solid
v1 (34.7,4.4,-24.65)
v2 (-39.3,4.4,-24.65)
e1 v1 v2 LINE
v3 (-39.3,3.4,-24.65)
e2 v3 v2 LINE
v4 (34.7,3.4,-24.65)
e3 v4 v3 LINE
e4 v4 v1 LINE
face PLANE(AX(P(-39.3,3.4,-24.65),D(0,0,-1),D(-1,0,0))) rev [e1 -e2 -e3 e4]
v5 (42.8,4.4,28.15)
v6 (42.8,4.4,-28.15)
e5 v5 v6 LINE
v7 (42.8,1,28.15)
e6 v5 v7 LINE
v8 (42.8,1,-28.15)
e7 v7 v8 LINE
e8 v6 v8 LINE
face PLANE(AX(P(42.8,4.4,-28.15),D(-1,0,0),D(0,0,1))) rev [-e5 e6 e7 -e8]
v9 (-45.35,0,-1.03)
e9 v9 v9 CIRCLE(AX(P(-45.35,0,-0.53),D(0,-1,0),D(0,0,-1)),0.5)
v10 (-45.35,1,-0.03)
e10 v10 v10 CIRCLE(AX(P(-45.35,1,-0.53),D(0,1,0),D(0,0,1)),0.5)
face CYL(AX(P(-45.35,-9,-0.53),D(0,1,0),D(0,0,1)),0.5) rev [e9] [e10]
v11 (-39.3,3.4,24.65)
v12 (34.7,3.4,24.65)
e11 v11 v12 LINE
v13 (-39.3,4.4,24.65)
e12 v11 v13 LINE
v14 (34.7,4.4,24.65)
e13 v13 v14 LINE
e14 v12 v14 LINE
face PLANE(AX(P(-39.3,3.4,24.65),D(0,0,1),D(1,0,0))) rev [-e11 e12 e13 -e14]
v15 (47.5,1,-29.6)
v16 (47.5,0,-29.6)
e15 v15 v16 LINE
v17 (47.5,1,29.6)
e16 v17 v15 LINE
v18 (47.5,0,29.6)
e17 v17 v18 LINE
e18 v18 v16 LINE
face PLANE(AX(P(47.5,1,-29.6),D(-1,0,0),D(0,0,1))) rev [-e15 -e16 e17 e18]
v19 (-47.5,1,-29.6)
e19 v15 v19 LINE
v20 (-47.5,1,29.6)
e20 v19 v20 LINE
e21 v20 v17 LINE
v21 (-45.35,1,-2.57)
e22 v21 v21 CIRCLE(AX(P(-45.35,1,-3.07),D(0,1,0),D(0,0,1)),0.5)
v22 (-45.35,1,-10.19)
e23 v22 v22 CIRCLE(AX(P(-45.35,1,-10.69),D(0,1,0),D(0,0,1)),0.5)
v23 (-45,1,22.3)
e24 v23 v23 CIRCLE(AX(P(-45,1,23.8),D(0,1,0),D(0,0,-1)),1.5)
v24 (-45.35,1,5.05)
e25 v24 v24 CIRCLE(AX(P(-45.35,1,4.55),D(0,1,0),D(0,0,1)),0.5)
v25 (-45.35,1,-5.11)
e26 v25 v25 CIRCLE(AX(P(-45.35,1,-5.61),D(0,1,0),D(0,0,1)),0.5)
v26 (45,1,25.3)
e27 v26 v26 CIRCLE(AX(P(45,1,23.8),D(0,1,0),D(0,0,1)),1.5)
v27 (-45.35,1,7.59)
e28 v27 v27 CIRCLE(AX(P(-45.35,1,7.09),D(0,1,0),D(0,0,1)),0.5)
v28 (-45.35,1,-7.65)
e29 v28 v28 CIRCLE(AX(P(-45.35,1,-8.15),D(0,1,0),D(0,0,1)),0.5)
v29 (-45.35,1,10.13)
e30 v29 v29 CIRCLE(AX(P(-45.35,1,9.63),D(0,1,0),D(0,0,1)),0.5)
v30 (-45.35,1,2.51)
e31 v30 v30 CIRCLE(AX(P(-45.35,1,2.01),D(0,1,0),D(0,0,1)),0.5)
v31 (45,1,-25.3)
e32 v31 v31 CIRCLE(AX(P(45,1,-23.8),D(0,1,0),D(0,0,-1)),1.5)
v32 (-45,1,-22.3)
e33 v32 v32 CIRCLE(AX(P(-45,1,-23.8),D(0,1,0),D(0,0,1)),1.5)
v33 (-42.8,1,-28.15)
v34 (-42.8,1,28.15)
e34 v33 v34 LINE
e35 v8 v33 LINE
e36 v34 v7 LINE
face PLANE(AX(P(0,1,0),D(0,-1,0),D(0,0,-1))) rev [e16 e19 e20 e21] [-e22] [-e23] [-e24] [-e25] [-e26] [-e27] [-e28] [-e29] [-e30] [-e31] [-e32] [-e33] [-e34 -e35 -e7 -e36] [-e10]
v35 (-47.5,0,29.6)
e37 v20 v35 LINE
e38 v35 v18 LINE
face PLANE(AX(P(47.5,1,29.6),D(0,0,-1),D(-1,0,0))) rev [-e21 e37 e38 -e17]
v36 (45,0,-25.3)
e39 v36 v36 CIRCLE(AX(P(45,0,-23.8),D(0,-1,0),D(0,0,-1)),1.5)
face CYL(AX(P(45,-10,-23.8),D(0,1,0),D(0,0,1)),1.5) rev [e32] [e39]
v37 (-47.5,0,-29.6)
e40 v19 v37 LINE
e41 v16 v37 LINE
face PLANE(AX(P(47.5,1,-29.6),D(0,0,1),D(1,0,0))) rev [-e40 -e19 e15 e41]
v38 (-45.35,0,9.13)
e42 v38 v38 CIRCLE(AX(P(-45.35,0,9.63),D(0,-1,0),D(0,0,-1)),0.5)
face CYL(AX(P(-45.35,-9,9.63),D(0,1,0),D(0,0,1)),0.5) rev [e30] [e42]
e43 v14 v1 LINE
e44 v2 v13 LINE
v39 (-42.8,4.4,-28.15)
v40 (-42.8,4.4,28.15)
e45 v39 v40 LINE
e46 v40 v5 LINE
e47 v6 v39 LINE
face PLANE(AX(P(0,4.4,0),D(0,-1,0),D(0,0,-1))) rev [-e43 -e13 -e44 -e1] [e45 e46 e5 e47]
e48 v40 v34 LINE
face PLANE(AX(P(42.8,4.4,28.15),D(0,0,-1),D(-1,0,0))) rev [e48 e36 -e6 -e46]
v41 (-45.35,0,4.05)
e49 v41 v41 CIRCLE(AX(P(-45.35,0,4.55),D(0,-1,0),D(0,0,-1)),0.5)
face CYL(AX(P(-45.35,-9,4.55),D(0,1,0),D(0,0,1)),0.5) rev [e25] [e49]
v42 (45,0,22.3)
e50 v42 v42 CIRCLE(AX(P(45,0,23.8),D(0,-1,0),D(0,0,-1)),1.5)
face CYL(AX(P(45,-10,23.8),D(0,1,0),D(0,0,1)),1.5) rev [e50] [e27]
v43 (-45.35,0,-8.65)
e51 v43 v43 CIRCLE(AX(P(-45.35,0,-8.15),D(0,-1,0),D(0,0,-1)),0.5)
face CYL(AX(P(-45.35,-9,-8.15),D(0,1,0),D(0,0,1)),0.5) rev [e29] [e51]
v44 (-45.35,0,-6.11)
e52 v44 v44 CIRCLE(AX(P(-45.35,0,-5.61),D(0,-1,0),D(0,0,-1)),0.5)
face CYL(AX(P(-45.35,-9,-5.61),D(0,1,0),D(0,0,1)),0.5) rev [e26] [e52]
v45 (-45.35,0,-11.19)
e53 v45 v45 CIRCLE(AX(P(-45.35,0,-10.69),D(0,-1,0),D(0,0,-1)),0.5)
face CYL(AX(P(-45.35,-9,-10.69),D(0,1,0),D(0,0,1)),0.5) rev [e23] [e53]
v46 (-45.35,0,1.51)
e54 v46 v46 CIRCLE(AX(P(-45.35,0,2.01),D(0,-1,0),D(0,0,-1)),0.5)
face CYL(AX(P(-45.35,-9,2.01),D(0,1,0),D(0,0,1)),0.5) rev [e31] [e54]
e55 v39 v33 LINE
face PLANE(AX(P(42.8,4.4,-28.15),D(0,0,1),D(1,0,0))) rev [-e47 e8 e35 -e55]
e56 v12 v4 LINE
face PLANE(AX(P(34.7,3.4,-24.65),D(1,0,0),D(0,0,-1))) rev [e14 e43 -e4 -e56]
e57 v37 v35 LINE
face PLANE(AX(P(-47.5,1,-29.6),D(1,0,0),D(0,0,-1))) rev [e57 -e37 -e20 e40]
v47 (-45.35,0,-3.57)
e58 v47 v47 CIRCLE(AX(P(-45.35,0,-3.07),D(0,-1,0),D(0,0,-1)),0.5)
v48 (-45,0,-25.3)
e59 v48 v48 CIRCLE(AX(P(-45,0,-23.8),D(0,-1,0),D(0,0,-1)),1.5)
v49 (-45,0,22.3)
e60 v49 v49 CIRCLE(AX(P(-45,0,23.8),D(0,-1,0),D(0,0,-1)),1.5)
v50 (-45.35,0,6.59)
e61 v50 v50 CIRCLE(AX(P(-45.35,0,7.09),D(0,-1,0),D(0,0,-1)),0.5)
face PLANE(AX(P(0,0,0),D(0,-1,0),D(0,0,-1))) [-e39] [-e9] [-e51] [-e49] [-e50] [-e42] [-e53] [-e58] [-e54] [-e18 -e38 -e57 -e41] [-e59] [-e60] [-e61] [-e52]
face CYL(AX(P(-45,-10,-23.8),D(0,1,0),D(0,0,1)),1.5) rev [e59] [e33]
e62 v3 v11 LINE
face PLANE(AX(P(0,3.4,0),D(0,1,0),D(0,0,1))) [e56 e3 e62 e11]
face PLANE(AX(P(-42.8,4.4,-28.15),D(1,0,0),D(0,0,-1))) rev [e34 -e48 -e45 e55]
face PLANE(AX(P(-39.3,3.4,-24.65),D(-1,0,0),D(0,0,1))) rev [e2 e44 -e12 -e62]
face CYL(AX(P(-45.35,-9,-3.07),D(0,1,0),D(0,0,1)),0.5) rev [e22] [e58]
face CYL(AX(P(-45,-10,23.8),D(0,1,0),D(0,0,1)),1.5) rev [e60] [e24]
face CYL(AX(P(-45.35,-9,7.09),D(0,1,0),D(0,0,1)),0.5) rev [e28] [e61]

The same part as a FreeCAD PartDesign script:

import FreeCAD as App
import Part
import Sketcher

doc = App.newDocument("Part")
body = doc.addObject("PartDesign::Body", "Body")

# Sketch on XZ plane
sketch1 = doc.addObject("Sketcher::SketchObject", "Sketch")
body.addObject(sketch1)
sketch1.AttachmentSupport = (doc.XZ_Plane, [""])
sketch1.MapMode = "FlatFace"
sketch1.addGeometry([
    Part.LineSegment(App.Vector(-48, -30, 0), App.Vector(-48, 30, 0)),
    Part.LineSegment(App.Vector(-48, 30, 0), App.Vector(48, 30, 0)),
    Part.LineSegment(App.Vector(48, 30, 0), App.Vector(48, -30, 0)),
    Part.LineSegment(App.Vector(48, -30, 0), App.Vector(-48, -30, 0)),
], False)
sketch1.addConstraint([
    Sketcher.Constraint("Coincident", 0, 2, 1, 1),
    Sketcher.Constraint("Coincident", 1, 2, 2, 1),
    Sketcher.Constraint("Coincident", 2, 2, 3, 1),
    Sketcher.Constraint("Coincident", 3, 2, 0, 1),
    Sketcher.Constraint("Vertical", 0),
    Sketcher.Constraint("Horizontal", 1),
    Sketcher.Constraint("Vertical", 2),
    Sketcher.Constraint("Horizontal", 3),
    Sketcher.Constraint("Symmetric", 0, 2, 2, 2, -1, 1),
    Sketcher.Constraint("DistanceX", 1, 1, 1, 2, 95.0),
    Sketcher.Constraint("DistanceY", 0, 1, 0, 2, 59.2),
])
pad1 = doc.addObject("PartDesign::Pad", "Pad")
body.addObject(pad1)
pad1.Profile = sketch1
pad1.Length = 1
pad1.Reversed = True

# Sketch on XZ plane
sketch2 = doc.addObject("Sketcher::SketchObject", "Sketch001")
body.addObject(sketch2)
sketch2.AttachmentSupport = (doc.XZ_Plane, [""])
sketch2.MapMode = "FlatFace"
sketch2.AttachmentOffset = App.Placement(App.Vector(0, 0, -1), App.Rotation())
sketch2.addGeometry([
    Part.LineSegment(App.Vector(-43, -28, 0), App.Vector(-43, 28, 0)),
    Part.LineSegment(App.Vector(-43, 28, 0), App.Vector(43, 28, 0)),
    Part.LineSegment(App.Vector(43, 28, 0), App.Vector(43, -28, 0)),
    Part.LineSegment(App.Vector(43, -28, 0), App.Vector(-43, -28, 0)),
], False)
sketch2.addConstraint([
    Sketcher.Constraint("Coincident", 0, 2, 1, 1),
    Sketcher.Constraint("Coincident", 1, 2, 2, 1),
    Sketcher.Constraint("Coincident", 2, 2, 3, 1),
    Sketcher.Constraint("Coincident", 3, 2, 0, 1),
    Sketcher.Constraint("Vertical", 0),
    Sketcher.Constraint("Horizontal", 1),
    Sketcher.Constraint("Vertical", 2),
    Sketcher.Constraint("Horizontal", 3),
    Sketcher.Constraint("Symmetric", 0, 2, 2, 2, -1, 1),
    Sketcher.Constraint("DistanceX", 1, 1, 1, 2, 85.6),
    Sketcher.Constraint("DistanceY", 0, 1, 0, 2, 56.3),
])
pad2 = doc.addObject("PartDesign::Pad", "Pad001")
body.addObject(pad2)
pad2.Profile = sketch2
pad2.Length = 3.4
pad2.Reversed = True

# Sketch on XZ plane
sketch3 = doc.addObject("Sketcher::SketchObject", "Sketch002")
body.addObject(sketch3)
sketch3.AttachmentSupport = (doc.XZ_Plane, [""])
sketch3.MapMode = "FlatFace"
sketch3.AttachmentOffset = App.Placement(App.Vector(0, 0, -4.4), App.Rotation())
sketch3.addGeometry([
    Part.LineSegment(App.Vector(-39, -25, 0), App.Vector(-39, 25, 0)),
    Part.LineSegment(App.Vector(-39, 25, 0), App.Vector(35, 25, 0)),
    Part.LineSegment(App.Vector(35, 25, 0), App.Vector(35, -25, 0)),
    Part.LineSegment(App.Vector(35, -25, 0), App.Vector(-39, -25, 0)),
], False)
sketch3.addConstraint([
    Sketcher.Constraint("Coincident", 0, 2, 1, 1),
    Sketcher.Constraint("Coincident", 1, 2, 2, 1),
    Sketcher.Constraint("Coincident", 2, 2, 3, 1),
    Sketcher.Constraint("Coincident", 3, 2, 0, 1),
    Sketcher.Constraint("Vertical", 0),
    Sketcher.Constraint("Horizontal", 1),
    Sketcher.Constraint("Vertical", 2),
    Sketcher.Constraint("Horizontal", 3),
    Sketcher.Constraint("DistanceX", 1, 1, 1, 2, 74.0),
    Sketcher.Constraint("DistanceY", 0, 1, 0, 2, 49.3),
    Sketcher.Constraint("DistanceX", 0, 2, -1, 1, 39.3),
    Sketcher.Constraint("DistanceY", -1, 1, 0, 2, 24.65),
])
pocket1 = doc.addObject("PartDesign::Pocket", "Pocket")
body.addObject(pocket1)
pocket1.Profile = sketch3
pocket1.Length = 1
pocket1.Reversed = True

# Sketch on XZ plane
sketch4 = doc.addObject("Sketcher::SketchObject", "Sketch003")
body.addObject(sketch4)
sketch4.AttachmentSupport = (doc.XZ_Plane, [""])
sketch4.MapMode = "FlatFace"
sketch4.AttachmentOffset = App.Placement(App.Vector(0, 0, -1), App.Rotation())
sketch4.addGeometry([
    Part.Circle(App.Vector(45, 23.8, 0), App.Vector(0, 0, 1), 1.5),
    Part.Circle(App.Vector(45, -23.8, 0), App.Vector(0, 0, 1), 1.5),
    Part.Circle(App.Vector(-45, 23.8, 0), App.Vector(0, 0, 1), 1.5),
    Part.Circle(App.Vector(-45, -23.8, 0), App.Vector(0, 0, 1), 1.5),
], False)
sketch4.addConstraint([
    Sketcher.Constraint("Equal", 0, 1),
    Sketcher.Constraint("Equal", 1, 2),
    Sketcher.Constraint("Equal", 2, 3),
    Sketcher.Constraint("Symmetric", 1, 3, 2, 3, -1, 1),
    Sketcher.Constraint("Symmetric", 0, 3, 3, 3, -1, 1),
    Sketcher.Constraint("Symmetric", 0, 3, 2, 3, -2),
    Sketcher.Constraint("Diameter", 0, 3.0),
    Sketcher.Constraint("DistanceX", -1, 1, 0, 3, 45.0),
    Sketcher.Constraint("DistanceY", -1, 1, 0, 3, 23.8),
])
pocket2 = doc.addObject("PartDesign::Pocket", "Pocket001")
body.addObject(pocket2)
pocket2.Profile = sketch4
pocket2.Length = 11
pocket2.Reversed = True

# Sketch on XZ plane
sketch5 = doc.addObject("Sketcher::SketchObject", "Sketch004")
body.addObject(sketch5)
sketch5.AttachmentSupport = (doc.XZ_Plane, [""])
sketch5.MapMode = "FlatFace"
sketch5.AttachmentOffset = App.Placement(App.Vector(0, 0, -1), App.Rotation())
sketch5.addGeometry([
    Part.Circle(App.Vector(-45.4, 9.6, 0), App.Vector(0, 0, 1), 0.5),  # 0
    Part.Circle(App.Vector(-45.4, 7.1, 0), App.Vector(0, 0, 1), 0.5),  # 1
    Part.Circle(App.Vector(-45.4, 4.5, 0), App.Vector(0, 0, 1), 0.5),  # 2
    Part.Circle(App.Vector(-45.4, 2, 0), App.Vector(0, 0, 1), 0.5),  # 3
    Part.Circle(App.Vector(-45.4, -0.5, 0), App.Vector(0, 0, 1), 0.5),  # 4
    Part.Circle(App.Vector(-45.4, -3.1, 0), App.Vector(0, 0, 1), 0.5),  # 5
    Part.Circle(App.Vector(-45.4, -5.6, 0), App.Vector(0, 0, 1), 0.5),  # 6
    Part.Circle(App.Vector(-45.4, -8.2, 0), App.Vector(0, 0, 1), 0.5),  # 7
    Part.Circle(App.Vector(-45.4, -10.7, 0), App.Vector(0, 0, 1), 0.5),  # 8
], False)
sketch5.addConstraint([
    Sketcher.Constraint("Equal", 0, 1),
    Sketcher.Constraint("Equal", 1, 2),
    Sketcher.Constraint("Equal", 2, 3),
    Sketcher.Constraint("Equal", 3, 4),
    Sketcher.Constraint("Equal", 4, 5),
    Sketcher.Constraint("Equal", 5, 6),
    Sketcher.Constraint("Equal", 6, 7),
    Sketcher.Constraint("Equal", 7, 8),
    Sketcher.Constraint("Vertical", 0, 3, 1, 3),
    Sketcher.Constraint("Vertical", 1, 3, 2, 3),
    Sketcher.Constraint("Vertical", 2, 3, 3, 3),
    Sketcher.Constraint("Vertical", 3, 3, 4, 3),
    Sketcher.Constraint("Vertical", 4, 3, 5, 3),
    Sketcher.Constraint("Vertical", 5, 3, 6, 3),
    Sketcher.Constraint("Vertical", 6, 3, 7, 3),
    Sketcher.Constraint("Vertical", 7, 3, 8, 3),
    Sketcher.Constraint("Diameter", 0, 1.0),
    Sketcher.Constraint("DistanceY", 5, 3, 0, 3, 12.7),
    Sketcher.Constraint("DistanceY", 6, 3, 1, 3, 12.7),
    Sketcher.Constraint("DistanceY", 7, 3, 2, 3, 12.7),
    Sketcher.Constraint("DistanceY", 8, 3, 3, 3, 12.7),
    Sketcher.Constraint("DistanceX", 0, 3, -1, 1, 45.35),
    Sketcher.Constraint("DistanceY", -1, 1, 0, 3, 9.63),
    Sketcher.Constraint("DistanceY", -1, 1, 1, 3, 7.09),
    Sketcher.Constraint("DistanceY", -1, 1, 2, 3, 4.55),
    Sketcher.Constraint("DistanceY", -1, 1, 3, 3, 2.01),
    Sketcher.Constraint("DistanceY", 4, 3, -1, 1, 0.53),
])
pocket3 = doc.addObject("PartDesign::Pocket", "Pocket002")
body.addObject(pocket3)
pocket3.Profile = sketch5
pocket3.Length = 10
pocket3.Reversed = True

doc.recompute()
